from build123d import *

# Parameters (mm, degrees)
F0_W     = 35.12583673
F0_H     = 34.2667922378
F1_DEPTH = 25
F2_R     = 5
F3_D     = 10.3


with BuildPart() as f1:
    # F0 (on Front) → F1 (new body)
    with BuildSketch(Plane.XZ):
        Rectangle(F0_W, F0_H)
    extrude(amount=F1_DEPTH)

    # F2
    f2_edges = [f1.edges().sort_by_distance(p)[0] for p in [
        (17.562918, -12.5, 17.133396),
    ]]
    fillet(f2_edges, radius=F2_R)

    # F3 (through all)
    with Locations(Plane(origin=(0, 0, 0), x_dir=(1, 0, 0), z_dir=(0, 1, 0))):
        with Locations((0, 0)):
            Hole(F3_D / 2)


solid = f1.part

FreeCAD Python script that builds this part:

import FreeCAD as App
import Part
import Sketcher
Q = App.Units.Quantity


def edges_at(feature, points):
    """Names of the edges that pass closest to the given points."""
    edges = feature.Shape.Edges
    near = lambda p: min(range(len(edges)), key=lambda i: edges[i].distToShape(Part.Vertex(*p))[0])
    return sorted({f"Edge{near(p) + 1}" for p in points})


def add_polygon(sketch, points):
    """Adds a closed chain of lines whose ends are joined by coincident constraints."""
    first, n = sketch.GeometryCount, len(points)
    for a, b in zip(points, points[1:] + points[:1]):
        sketch.addGeometry(Part.LineSegment(App.Vector(*a, 0), App.Vector(*b, 0)), False)
    for i in range(n):
        sketch.addConstraint(Sketcher.Constraint("Coincident", first + i, 2, first + (i + 1) % n, 1))

doc = App.newDocument("Part")
body = doc.addObject("PartDesign::Body", "Body")

# Sketch on XZ plane
sketch1 = doc.addObject("Sketcher::SketchObject", "Sketch")
body.addObject(sketch1)
sketch1.AttachmentSupport = (doc.XZ_Plane, [""])
sketch1.MapMode = "FlatFace"
add_polygon(sketch1, [(-18, 17), (-18, -17), (18, -17), (18, 17)])  # lines 0-3
sketch1.addConstraint(Sketcher.Constraint("Vertical", 0))
sketch1.addConstraint(Sketcher.Constraint("Horizontal", 1))
sketch1.addConstraint(Sketcher.Constraint("Vertical", 2))
sketch1.addConstraint(Sketcher.Constraint("Horizontal", 3))
sketch1.addConstraint(Sketcher.Constraint("Symmetric", 0, 2, 2, 2, -1, 1))
sketch1.addConstraint(Sketcher.Constraint("DistanceX", 1, 1, 1, 2, Q("35.125837 mm")))
sketch1.addConstraint(Sketcher.Constraint("DistanceY", 0, 2, 0, 1, Q("34.266792 mm")))
pad1 = doc.addObject("PartDesign::Pad", "Pad")
body.addObject(pad1)
pad1.Profile = sketch1
pad1.Length = 25
doc.recompute()

fillet = doc.addObject("PartDesign::Fillet", "Fillet")
body.addObject(fillet)
fillet.Base = (pad1, edges_at(pad1, [(17.563, -12.5, 17.133)]))
fillet.Radius = 5

# Sketch on XZ plane
sketch2 = doc.addObject("Sketcher::SketchObject", "Sketch001")
body.addObject(sketch2)
sketch2.AttachmentSupport = (doc.XZ_Plane, [""])
sketch2.MapMode = "FlatFace"
sketch2.addGeometry(Part.Circle(App.Vector(0, 0, 0), App.Vector(0, 0, 1), 5), False)
sketch2.addConstraint(Sketcher.Constraint("Coincident", 0, 3, -1, 1))
sketch2.addConstraint(Sketcher.Constraint("Diameter", 0, Q("10.3 mm")))
doc.recompute()
hole = doc.addObject("PartDesign::Hole", "Hole")
body.addObject(hole)
hole.Profile = sketch2
hole.ThreadType = "None"
hole.Diameter = 10.3
hole.DepthType = "ThroughAll"
hole.Reversed = True

doc.recompute()
